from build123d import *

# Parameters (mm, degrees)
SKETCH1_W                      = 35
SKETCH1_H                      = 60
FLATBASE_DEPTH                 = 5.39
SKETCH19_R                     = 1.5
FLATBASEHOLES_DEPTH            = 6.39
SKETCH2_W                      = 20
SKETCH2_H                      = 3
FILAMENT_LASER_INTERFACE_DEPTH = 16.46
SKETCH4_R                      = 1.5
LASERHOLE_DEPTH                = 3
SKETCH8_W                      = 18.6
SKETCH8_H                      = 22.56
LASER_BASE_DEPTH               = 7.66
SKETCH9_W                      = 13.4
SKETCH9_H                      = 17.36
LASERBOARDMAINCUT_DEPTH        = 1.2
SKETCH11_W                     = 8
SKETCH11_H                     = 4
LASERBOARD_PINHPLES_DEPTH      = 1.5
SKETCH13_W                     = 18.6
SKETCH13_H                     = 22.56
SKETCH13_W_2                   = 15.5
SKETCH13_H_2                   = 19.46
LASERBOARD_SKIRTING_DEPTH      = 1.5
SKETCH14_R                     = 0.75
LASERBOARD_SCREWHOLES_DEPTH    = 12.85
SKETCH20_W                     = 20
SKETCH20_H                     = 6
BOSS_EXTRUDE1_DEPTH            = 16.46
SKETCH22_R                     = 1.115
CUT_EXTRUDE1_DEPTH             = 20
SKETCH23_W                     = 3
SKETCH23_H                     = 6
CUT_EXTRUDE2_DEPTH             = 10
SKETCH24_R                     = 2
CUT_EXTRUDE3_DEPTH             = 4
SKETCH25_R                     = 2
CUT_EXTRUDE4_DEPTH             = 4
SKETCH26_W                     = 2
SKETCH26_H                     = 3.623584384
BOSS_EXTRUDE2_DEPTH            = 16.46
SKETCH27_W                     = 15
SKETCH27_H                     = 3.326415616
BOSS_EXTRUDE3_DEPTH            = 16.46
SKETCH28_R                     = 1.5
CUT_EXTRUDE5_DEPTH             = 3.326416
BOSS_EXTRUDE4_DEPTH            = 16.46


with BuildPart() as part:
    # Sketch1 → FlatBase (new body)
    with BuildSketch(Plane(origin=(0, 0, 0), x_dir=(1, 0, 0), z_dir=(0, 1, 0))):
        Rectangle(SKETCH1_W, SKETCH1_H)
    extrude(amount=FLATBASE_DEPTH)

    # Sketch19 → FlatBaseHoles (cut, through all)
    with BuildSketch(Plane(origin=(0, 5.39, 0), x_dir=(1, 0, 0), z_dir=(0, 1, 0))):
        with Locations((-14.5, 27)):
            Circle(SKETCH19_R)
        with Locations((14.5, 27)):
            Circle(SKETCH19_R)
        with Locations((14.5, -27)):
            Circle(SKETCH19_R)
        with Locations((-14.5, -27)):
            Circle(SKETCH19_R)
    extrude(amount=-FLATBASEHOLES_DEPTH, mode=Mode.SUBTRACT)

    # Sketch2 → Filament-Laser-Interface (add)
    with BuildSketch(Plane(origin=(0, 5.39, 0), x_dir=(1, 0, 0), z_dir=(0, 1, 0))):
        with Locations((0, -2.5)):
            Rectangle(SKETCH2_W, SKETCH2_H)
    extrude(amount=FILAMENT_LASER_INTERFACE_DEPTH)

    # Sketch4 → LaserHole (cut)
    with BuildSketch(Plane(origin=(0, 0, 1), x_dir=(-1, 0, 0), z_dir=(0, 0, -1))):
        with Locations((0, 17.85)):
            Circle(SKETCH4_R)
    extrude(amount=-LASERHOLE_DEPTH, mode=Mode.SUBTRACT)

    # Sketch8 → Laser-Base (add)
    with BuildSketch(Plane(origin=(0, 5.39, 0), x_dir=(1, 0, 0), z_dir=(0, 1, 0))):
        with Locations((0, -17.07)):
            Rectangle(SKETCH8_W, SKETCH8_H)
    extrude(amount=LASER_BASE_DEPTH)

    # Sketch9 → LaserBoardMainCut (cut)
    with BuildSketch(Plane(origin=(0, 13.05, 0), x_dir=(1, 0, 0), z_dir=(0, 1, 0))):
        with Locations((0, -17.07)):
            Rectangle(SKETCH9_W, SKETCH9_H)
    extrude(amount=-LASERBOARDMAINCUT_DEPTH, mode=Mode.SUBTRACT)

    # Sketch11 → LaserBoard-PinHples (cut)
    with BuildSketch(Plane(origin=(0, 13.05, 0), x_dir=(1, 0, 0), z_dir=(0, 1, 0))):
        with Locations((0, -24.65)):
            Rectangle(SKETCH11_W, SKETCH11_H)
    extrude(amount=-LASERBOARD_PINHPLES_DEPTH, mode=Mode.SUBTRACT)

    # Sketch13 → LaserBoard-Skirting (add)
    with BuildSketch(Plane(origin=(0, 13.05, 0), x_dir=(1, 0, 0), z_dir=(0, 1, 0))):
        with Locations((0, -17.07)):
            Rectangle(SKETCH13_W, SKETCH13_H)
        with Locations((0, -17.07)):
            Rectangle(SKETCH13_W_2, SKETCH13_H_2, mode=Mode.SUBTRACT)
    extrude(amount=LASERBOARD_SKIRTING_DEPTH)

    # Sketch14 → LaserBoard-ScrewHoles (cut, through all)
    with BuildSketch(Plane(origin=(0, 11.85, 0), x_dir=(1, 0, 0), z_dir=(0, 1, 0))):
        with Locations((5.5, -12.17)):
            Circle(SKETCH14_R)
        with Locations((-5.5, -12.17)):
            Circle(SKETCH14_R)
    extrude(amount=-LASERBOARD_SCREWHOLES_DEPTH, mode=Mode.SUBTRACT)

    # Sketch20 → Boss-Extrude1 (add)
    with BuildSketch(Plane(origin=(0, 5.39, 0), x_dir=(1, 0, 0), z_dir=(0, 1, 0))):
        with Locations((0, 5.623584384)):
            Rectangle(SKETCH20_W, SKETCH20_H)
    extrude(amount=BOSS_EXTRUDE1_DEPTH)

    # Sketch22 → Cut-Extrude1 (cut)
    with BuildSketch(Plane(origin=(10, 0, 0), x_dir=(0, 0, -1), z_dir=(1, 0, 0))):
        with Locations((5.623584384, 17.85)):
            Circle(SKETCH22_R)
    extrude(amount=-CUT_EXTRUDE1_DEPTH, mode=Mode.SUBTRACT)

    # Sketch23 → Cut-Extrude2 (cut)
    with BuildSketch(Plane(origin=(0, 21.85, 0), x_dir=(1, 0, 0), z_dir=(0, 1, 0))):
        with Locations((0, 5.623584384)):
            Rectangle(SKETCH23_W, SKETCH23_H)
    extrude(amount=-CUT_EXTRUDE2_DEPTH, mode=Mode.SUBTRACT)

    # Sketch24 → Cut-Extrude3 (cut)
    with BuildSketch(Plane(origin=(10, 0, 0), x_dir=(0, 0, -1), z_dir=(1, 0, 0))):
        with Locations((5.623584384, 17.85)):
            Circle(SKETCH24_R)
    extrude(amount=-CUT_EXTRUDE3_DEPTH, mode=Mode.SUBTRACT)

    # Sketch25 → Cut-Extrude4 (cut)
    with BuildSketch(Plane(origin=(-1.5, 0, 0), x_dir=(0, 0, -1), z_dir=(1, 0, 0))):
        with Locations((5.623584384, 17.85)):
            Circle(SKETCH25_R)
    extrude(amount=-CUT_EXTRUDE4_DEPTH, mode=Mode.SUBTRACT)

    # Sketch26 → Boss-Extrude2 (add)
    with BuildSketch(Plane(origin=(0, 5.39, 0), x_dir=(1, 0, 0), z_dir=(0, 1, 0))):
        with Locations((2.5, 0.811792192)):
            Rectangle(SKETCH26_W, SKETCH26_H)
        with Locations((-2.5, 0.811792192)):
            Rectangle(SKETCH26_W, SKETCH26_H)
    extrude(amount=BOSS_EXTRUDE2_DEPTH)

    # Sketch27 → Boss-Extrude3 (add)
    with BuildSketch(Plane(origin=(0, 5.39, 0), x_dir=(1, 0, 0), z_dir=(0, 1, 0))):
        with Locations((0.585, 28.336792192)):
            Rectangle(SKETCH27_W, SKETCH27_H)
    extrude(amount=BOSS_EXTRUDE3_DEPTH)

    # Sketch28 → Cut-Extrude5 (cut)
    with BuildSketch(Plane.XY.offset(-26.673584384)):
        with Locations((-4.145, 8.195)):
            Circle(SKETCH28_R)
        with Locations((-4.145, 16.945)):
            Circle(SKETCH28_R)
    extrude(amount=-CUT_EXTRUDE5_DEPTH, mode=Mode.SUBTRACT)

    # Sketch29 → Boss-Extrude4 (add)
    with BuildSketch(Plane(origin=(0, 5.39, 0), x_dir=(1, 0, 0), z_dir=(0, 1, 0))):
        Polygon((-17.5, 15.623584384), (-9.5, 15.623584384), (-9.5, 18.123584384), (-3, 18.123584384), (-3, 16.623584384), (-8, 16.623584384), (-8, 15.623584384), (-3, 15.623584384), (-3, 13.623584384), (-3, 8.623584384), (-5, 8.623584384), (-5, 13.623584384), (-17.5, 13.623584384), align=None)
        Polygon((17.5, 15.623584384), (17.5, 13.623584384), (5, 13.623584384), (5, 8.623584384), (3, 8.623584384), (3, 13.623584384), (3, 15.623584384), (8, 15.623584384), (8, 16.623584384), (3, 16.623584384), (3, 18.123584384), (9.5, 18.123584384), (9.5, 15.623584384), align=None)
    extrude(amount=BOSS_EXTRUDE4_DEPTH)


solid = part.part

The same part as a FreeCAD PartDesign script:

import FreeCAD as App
import Part
import Sketcher

V = App.Vector


def add_polygon(sketch, points):
    """Adds a closed chain of lines whose ends are joined by coincident constraints."""
    first, n = sketch.GeometryCount, len(points)
    for a, b in zip(points, points[1:] + points[:1]):
        sketch.addGeometry(Part.LineSegment(App.Vector(*a, 0), App.Vector(*b, 0)), False)
    for i in range(n):
        sketch.addConstraint(Sketcher.Constraint("Coincident", first + i, 2, first + (i + 1) % n, 1))

doc = App.newDocument("Part")
body = doc.addObject("PartDesign::Body", "Body")

sketch1 = doc.addObject("Sketcher::SketchObject", "Sketch")
body.addObject(sketch1)
sketch1.AttachmentSupport = (doc.XZ_Plane, [""])
sketch1.MapMode = "FlatFace"
add_polygon(sketch1, [(-17.5, -30), (-17.5, 30), (17.5, 30), (17.5, -30)])
sketch1.addConstraint([
    Sketcher.Constraint("Vertical", 0),
    Sketcher.Constraint("Horizontal", 1),
    Sketcher.Constraint("Vertical", 2),
    Sketcher.Constraint("Horizontal", 3),
    Sketcher.Constraint("Symmetric", 0, 2, 2, 2, -1, 1),
    Sketcher.Constraint("DistanceX", 1, 1, 1, 2, 35.0),
    Sketcher.Constraint("DistanceY", 0, 1, 0, 2, 60.0),
])
pad1 = doc.addObject("PartDesign::Pad", "Pad")
body.addObject(pad1)
pad1.Profile = sketch1
pad1.Length = 5.39
pad1.Reversed = True

sketch2 = doc.addObject("Sketcher::SketchObject", "Sketch001")
body.addObject(sketch2)
sketch2.AttachmentSupport = (doc.XZ_Plane, [""])
sketch2.MapMode = "FlatFace"
sketch2.AttachmentOffset = App.Placement(V(0, 0, -5.39), App.Rotation())
sketch2.addGeometry([
    Part.Circle(V(-14.5, -27, 0), V(0, 0, 1), 1.5),
    Part.Circle(V(14.5, -27, 0), V(0, 0, 1), 1.5),
    Part.Circle(V(14.5, 27, 0), V(0, 0, 1), 1.5),
    Part.Circle(V(-14.5, 27, 0), V(0, 0, 1), 1.5),
], False)
sketch2.addConstraint([
    Sketcher.Constraint("Equal", 0, 1),
    Sketcher.Constraint("Equal", 1, 2),
    Sketcher.Constraint("Equal", 2, 3),
    Sketcher.Constraint("Symmetric", 0, 3, 2, 3, -1, 1),
    Sketcher.Constraint("Symmetric", 1, 3, 3, 3, -1, 1),
    Sketcher.Constraint("Symmetric", 0, 3, 1, 3, -2),
    Sketcher.Constraint("Diameter", 0, 3.0),
    Sketcher.Constraint("DistanceY", 0, 3, -1, 1, 27.0),
    Sketcher.Constraint("DistanceX", 0, 3, 1, 3, 29.0),
])
pocket1 = doc.addObject("PartDesign::Pocket", "Pocket")
body.addObject(pocket1)
pocket1.Profile = sketch2
pocket1.Type = "ThroughAll"
pocket1.Reversed = True

sketch3 = doc.addObject("Sketcher::SketchObject", "Sketch002")
body.addObject(sketch3)
sketch3.AttachmentSupport = (doc.XZ_Plane, [""])
sketch3.MapMode = "FlatFace"
sketch3.AttachmentOffset = App.Placement(V(0, 0, -5.39), App.Rotation())
add_polygon(sketch3, [(-10, 1), (-10, 4), (10, 4), (10, 1)])
sketch3.addConstraint([
    Sketcher.Constraint("Vertical", 0),
    Sketcher.Constraint("Horizontal", 1),
    Sketcher.Constraint("Vertical", 2),
    Sketcher.Constraint("Horizontal", 3),
    Sketcher.Constraint("DistanceX", 1, 1, 1, 2, 20.0),
    Sketcher.Constraint("DistanceY", 0, 1, 0, 2, 3.0),
    Sketcher.Constraint("DistanceX", 0, 2, -1, 1, 10.0),
    Sketcher.Constraint("DistanceY", -1, 1, 0, 2, 4.0),
])
pad2 = doc.addObject("PartDesign::Pad", "Pad001")
body.addObject(pad2)
pad2.Profile = sketch3
pad2.Length = 16.46
pad2.Reversed = True

sketch4 = doc.addObject("Sketcher::SketchObject", "Sketch003")
body.addObject(sketch4)
sketch4.AttachmentSupport = (doc.XY_Plane, [""])
sketch4.MapMode = "FlatFace"
sketch4.AttachmentOffset = App.Placement(V(0, 0, 1), App.Rotation())
sketch4.addGeometry(Part.Circle(V(0, 17.85, 0), V(0, 0, 1), 1.5), False)
sketch4.addConstraint([
    Sketcher.Constraint("PointOnObject", 0, 3, -2),
    Sketcher.Constraint("Diameter", 0, 3.0),
    Sketcher.Constraint("DistanceY", -1, 1, 0, 3, 17.85),
])
pocket2 = doc.addObject("PartDesign::Pocket", "Pocket001")
body.addObject(pocket2)
pocket2.Profile = sketch4
pocket2.Length = 3
pocket2.Reversed = True

sketch5 = doc.addObject("Sketcher::SketchObject", "Sketch004")
body.addObject(sketch5)
sketch5.AttachmentSupport = (doc.XZ_Plane, [""])
sketch5.MapMode = "FlatFace"
sketch5.AttachmentOffset = App.Placement(V(0, 0, -5.39), App.Rotation())
add_polygon(sketch5, [(-9.3, 5.79), (-9.3, 28.35), (9.3, 28.35), (9.3, 5.79)])
sketch5.addConstraint([
    Sketcher.Constraint("Vertical", 0),
    Sketcher.Constraint("Horizontal", 1),
    Sketcher.Constraint("Vertical", 2),
    Sketcher.Constraint("Horizontal", 3),
    Sketcher.Constraint("DistanceX", 1, 1, 1, 2, 18.6),
    Sketcher.Constraint("DistanceY", 0, 1, 0, 2, 22.56),
    Sketcher.Constraint("DistanceX", 0, 2, -1, 1, 9.3),
    Sketcher.Constraint("DistanceY", -1, 1, 0, 2, 28.35),
])
pad3 = doc.addObject("PartDesign::Pad", "Pad002")
body.addObject(pad3)
pad3.Profile = sketch5
pad3.Length = 7.66
pad3.Reversed = True

sketch6 = doc.addObject("Sketcher::SketchObject", "Sketch005")
body.addObject(sketch6)
sketch6.AttachmentSupport = (doc.XZ_Plane, [""])
sketch6.MapMode = "FlatFace"
sketch6.AttachmentOffset = App.Placement(V(0, 0, -13.05), App.Rotation())
add_polygon(sketch6, [(-6.7, 8.39), (-6.7, 25.75), (6.7, 25.75), (6.7, 8.39)])
sketch6.addConstraint([
    Sketcher.Constraint("Vertical", 0),
    Sketcher.Constraint("Horizontal", 1),
    Sketcher.Constraint("Vertical", 2),
    Sketcher.Constraint("Horizontal", 3),
    Sketcher.Constraint("DistanceX", 1, 1, 1, 2, 13.4),
    Sketcher.Constraint("DistanceY", 0, 1, 0, 2, 17.36),
    Sketcher.Constraint("DistanceX", 0, 2, -1, 1, 6.7),
    Sketcher.Constraint("DistanceY", -1, 1, 0, 2, 25.75),
])
pocket3 = doc.addObject("PartDesign::Pocket", "Pocket002")
body.addObject(pocket3)
pocket3.Profile = sketch6
pocket3.Length = 1.2
pocket3.Reversed = True

sketch7 = doc.addObject("Sketcher::SketchObject", "Sketch006")
body.addObject(sketch7)
sketch7.AttachmentSupport = (doc.XZ_Plane, [""])
sketch7.MapMode = "FlatFace"
sketch7.AttachmentOffset = App.Placement(V(0, 0, -13.05), App.Rotation())
add_polygon(sketch7, [(-4, 22.65), (-4, 26.65), (4, 26.65), (4, 22.65)])
sketch7.addConstraint([
    Sketcher.Constraint("Vertical", 0),
    Sketcher.Constraint("Horizontal", 1),
    Sketcher.Constraint("Vertical", 2),
    Sketcher.Constraint("Horizontal", 3),
    Sketcher.Constraint("DistanceX", 1, 1, 1, 2, 8.0),
    Sketcher.Constraint("DistanceY", 0, 1, 0, 2, 4.0),
    Sketcher.Constraint("DistanceX", 0, 2, -1, 1, 4.0),
    Sketcher.Constraint("DistanceY", -1, 1, 0, 2, 26.65),
])
pocket4 = doc.addObject("PartDesign::Pocket", "Pocket003")
body.addObject(pocket4)
pocket4.Profile = sketch7
pocket4.Length = 1.5
pocket4.Reversed = True

sketch8 = doc.addObject("Sketcher::SketchObject", "Sketch007")
body.addObject(sketch8)
sketch8.AttachmentSupport = (doc.XZ_Plane, [""])
sketch8.MapMode = "FlatFace"
sketch8.AttachmentOffset = App.Placement(V(0, 0, -13.05), App.Rotation())
add_polygon(sketch8, [(-9.3, 5.79), (-9.3, 28.35), (9.3, 28.35), (9.3, 5.79)])
add_polygon(sketch8, [(7.75, 26.8), (-7.75, 26.8), (-7.75, 7.34), (7.75, 7.34)])
sketch8.addConstraint([
    Sketcher.Constraint("Vertical", 0),
    Sketcher.Constraint("Horizontal", 1),
    Sketcher.Constraint("Vertical", 2),
    Sketcher.Constraint("Horizontal", 3),
    Sketcher.Constraint("Horizontal", 4),
    Sketcher.Constraint("Vertical", 5),
    Sketcher.Constraint("Horizontal", 6),
    Sketcher.Constraint("Vertical", 7),
    Sketcher.Constraint("DistanceX", 1, 1, 1, 2, 18.6),
    Sketcher.Constraint("DistanceX", 4, 2, 4, 1, 15.5),
    Sketcher.Constraint("DistanceY", 0, 1, 0, 2, 22.56),
    Sketcher.Constraint("DistanceY", 5, 2, 5, 1, 19.46),
    Sketcher.Constraint("DistanceX", 0, 2, -1, 1, 9.3),
    Sketcher.Constraint("DistanceY", -1, 1, 4, 2, 26.8),
    Sketcher.Constraint("DistanceY", -1, 1, 0, 2, 28.35),
    Sketcher.Constraint("DistanceX", 4, 2, -1, 1, 7.75),
])
pad4 = doc.addObject("PartDesign::Pad", "Pad003")
body.addObject(pad4)
pad4.Profile = sketch8
pad4.Length = 1.5
pad4.Reversed = True

sketch9 = doc.addObject("Sketcher::SketchObject", "Sketch008")
body.addObject(sketch9)
sketch9.AttachmentSupport = (doc.XZ_Plane, [""])
sketch9.MapMode = "FlatFace"
sketch9.AttachmentOffset = App.Placement(V(0, 0, -11.85), App.Rotation())
sketch9.addGeometry([
    Part.Circle(V(5.5, 12.17, 0), V(0, 0, 1), 0.75),
    Part.Circle(V(-5.5, 12.17, 0), V(0, 0, 1), 0.75),
], False)
sketch9.addConstraint([
    Sketcher.Constraint("Equal", 0, 1),
    Sketcher.Constraint("Symmetric", 0, 3, 1, 3, -2),
    Sketcher.Constraint("Diameter", 0, 1.5),
    Sketcher.Constraint("DistanceX", 1, 3, 0, 3, 11.0),
    Sketcher.Constraint("DistanceY", -1, 1, 0, 3, 12.17),
])
pocket5 = doc.addObject("PartDesign::Pocket", "Pocket004")
body.addObject(pocket5)
pocket5.Profile = sketch9
pocket5.Type = "ThroughAll"
pocket5.Reversed = True

sketch10 = doc.addObject("Sketcher::SketchObject", "Sketch009")
body.addObject(sketch10)
sketch10.AttachmentSupport = (doc.XZ_Plane, [""])
sketch10.MapMode = "FlatFace"
sketch10.AttachmentOffset = App.Placement(V(0, 0, -5.39), App.Rotation())
add_polygon(sketch10, [(-10, -8.623584), (-10, -2.623584), (10, -2.623584), (10, -8.623584)])
sketch10.addConstraint([
    Sketcher.Constraint("Vertical", 0),
    Sketcher.Constraint("Horizontal", 1),
    Sketcher.Constraint("Vertical", 2),
    Sketcher.Constraint("Horizontal", 3),
    Sketcher.Constraint("DistanceX", 1, 1, 1, 2, 20.0),
    Sketcher.Constraint("DistanceY", 0, 1, 0, 2, 6.0),
    Sketcher.Constraint("DistanceX", 0, 2, -1, 1, 10.0),
    Sketcher.Constraint("DistanceY", 0, 2, -1, 1, 2.623584),
])
pad5 = doc.addObject("PartDesign::Pad", "Pad004")
body.addObject(pad5)
pad5.Profile = sketch10
pad5.Length = 16.46
pad5.Reversed = True

sketch11 = doc.addObject("Sketcher::SketchObject", "Sketch010")
body.addObject(sketch11)
sketch11.AttachmentSupport = (doc.YZ_Plane, [""])
sketch11.MapMode = "FlatFace"
sketch11.AttachmentOffset = App.Placement(V(0, 0, 10), App.Rotation())
sketch11.addGeometry(Part.Circle(V(17.85, -5.623584, 0), V(0, 0, 1), 1.115), False)
sketch11.addConstraint([
    Sketcher.Constraint("Diameter", 0, 2.23),
    Sketcher.Constraint("DistanceX", -1, 1, 0, 3, 17.85),
    Sketcher.Constraint("DistanceY", 0, 3, -1, 1, 5.623584),
])
pocket6 = doc.addObject("PartDesign::Pocket", "Pocket005")
body.addObject(pocket6)
pocket6.Profile = sketch11
pocket6.Length = 20

sketch12 = doc.addObject("Sketcher::SketchObject", "Sketch011")
body.addObject(sketch12)
sketch12.AttachmentSupport = (doc.XZ_Plane, [""])
sketch12.MapMode = "FlatFace"
sketch12.AttachmentOffset = App.Placement(V(0, 0, -21.85), App.Rotation())
add_polygon(sketch12, [(-1.5, -8.623584), (-1.5, -2.623584), (1.5, -2.623584), (1.5, -8.623584)])
sketch12.addConstraint([
    Sketcher.Constraint("Vertical", 0),
    Sketcher.Constraint("Horizontal", 1),
    Sketcher.Constraint("Vertical", 2),
    Sketcher.Constraint("Horizontal", 3),
    Sketcher.Constraint("DistanceX", 1, 1, 1, 2, 3.0),
    Sketcher.Constraint("DistanceY", 0, 1, 0, 2, 6.0),
    Sketcher.Constraint("DistanceX", 0, 2, -1, 1, 1.5),
    Sketcher.Constraint("DistanceY", 0, 2, -1, 1, 2.623584),
])
pocket7 = doc.addObject("PartDesign::Pocket", "Pocket006")
body.addObject(pocket7)
pocket7.Profile = sketch12
pocket7.Length = 10
pocket7.Reversed = True

sketch13 = doc.addObject("Sketcher::SketchObject", "Sketch012")
body.addObject(sketch13)
sketch13.AttachmentSupport = (doc.YZ_Plane, [""])
sketch13.MapMode = "FlatFace"
sketch13.AttachmentOffset = App.Placement(V(0, 0, 10), App.Rotation())
sketch13.addGeometry(Part.Circle(V(17.85, -5.623584, 0), V(0, 0, 1), 2), False)
sketch13.addConstraint([
    Sketcher.Constraint("Diameter", 0, 4.0),
    Sketcher.Constraint("DistanceX", -1, 1, 0, 3, 17.85),
    Sketcher.Constraint("DistanceY", 0, 3, -1, 1, 5.623584),
])
pocket8 = doc.addObject("PartDesign::Pocket", "Pocket007")
body.addObject(pocket8)
pocket8.Profile = sketch13
pocket8.Length = 4

sketch14 = doc.addObject("Sketcher::SketchObject", "Sketch013")
body.addObject(sketch14)
sketch14.AttachmentSupport = (doc.YZ_Plane, [""])
sketch14.MapMode = "FlatFace"
sketch14.AttachmentOffset = App.Placement(V(0, 0, -1.5), App.Rotation())
sketch14.addGeometry(Part.Circle(V(17.85, -5.623584, 0), V(0, 0, 1), 2), False)
sketch14.addConstraint([
    Sketcher.Constraint("Diameter", 0, 4.0),
    Sketcher.Constraint("DistanceX", -1, 1, 0, 3, 17.85),
    Sketcher.Constraint("DistanceY", 0, 3, -1, 1, 5.623584),
])
pocket9 = doc.addObject("PartDesign::Pocket", "Pocket008")
body.addObject(pocket9)
pocket9.Profile = sketch14
pocket9.Length = 4

sketch15 = doc.addObject("Sketcher::SketchObject", "Sketch014")
body.addObject(sketch15)
sketch15.AttachmentSupport = (doc.XZ_Plane, [""])
sketch15.MapMode = "FlatFace"
sketch15.AttachmentOffset = App.Placement(V(0, 0, -5.39), App.Rotation())
add_polygon(sketch15, [(1.5, -2.623584), (1.5, 1), (3.5, 1), (3.5, -2.623584)])
add_polygon(sketch15, [(-3.5, -2.623584), (-3.5, 1), (-1.5, 1), (-1.5, -2.623584)])
sketch15.addConstraint([
    Sketcher.Constraint("Vertical", 0),
    Sketcher.Constraint("Horizontal", 1),
    Sketcher.Constraint("Vertical", 2),
    Sketcher.Constraint("Horizontal", 3),
    Sketcher.Constraint("Vertical", 4),
    Sketcher.Constraint("Horizontal", 5),
    Sketcher.Constraint("Vertical", 6),
    Sketcher.Constraint("Horizontal", 7),
    Sketcher.Constraint("Symmetric", 1, 2, 4, 2, -2),
    Sketcher.Constraint("Symmetric", 3, 2, 6, 2, -2),
    Sketcher.Constraint("DistanceX", 1, 1, 1, 2, 2.0),
    Sketcher.Constraint("DistanceY", -1, 1, 0, 2, 1.0),
    Sketcher.Constraint("DistanceX", 4, 2, 0, 2, 5.0),
    Sketcher.Constraint("DistanceY", 0, 1, 0, 2, 3.623584),
])
pad6 = doc.addObject("PartDesign::Pad", "Pad005")
body.addObject(pad6)
pad6.Profile = sketch15
pad6.Length = 16.46
pad6.Reversed = True

sketch16 = doc.addObject("Sketcher::SketchObject", "Sketch015")
body.addObject(sketch16)
sketch16.AttachmentSupport = (doc.XZ_Plane, [""])
sketch16.MapMode = "FlatFace"
sketch16.AttachmentOffset = App.Placement(V(0, 0, -5.39), App.Rotation())
add_polygon(sketch16, [(-6.915, -30), (-6.915, -26.673584), (8.085, -26.673584), (8.085, -30)])
sketch16.addConstraint([
    Sketcher.Constraint("Vertical", 0),
    Sketcher.Constraint("Horizontal", 1),
    Sketcher.Constraint("Vertical", 2),
    Sketcher.Constraint("Horizontal", 3),
    Sketcher.Constraint("DistanceX", 1, 1, 1, 2, 15.0),
    Sketcher.Constraint("DistanceY", 2, 2, -1, 1, 30.0),
    Sketcher.Constraint("DistanceX", 0, 2, -1, 1, 6.915),
    Sketcher.Constraint("DistanceY", 0, 1, 0, 2, 3.326416),
])
pad7 = doc.addObject("PartDesign::Pad", "Pad006")
body.addObject(pad7)
pad7.Profile = sketch16
pad7.Length = 16.46
pad7.Reversed = True

sketch17 = doc.addObject("Sketcher::SketchObject", "Sketch016")
body.addObject(sketch17)
sketch17.AttachmentSupport = (doc.XY_Plane, [""])
sketch17.MapMode = "FlatFace"
sketch17.AttachmentOffset = App.Placement(V(0, 0, -26.673584), App.Rotation())
sketch17.addGeometry([
    Part.Circle(V(-4.145, 8.195, 0), V(0, 0, 1), 1.5),
    Part.Circle(V(-4.145, 16.945, 0), V(0, 0, 1), 1.5),
], False)
sketch17.addConstraint([
    Sketcher.Constraint("Equal", 0, 1),
    Sketcher.Constraint("Vertical", 0, 3, 1, 3),
    Sketcher.Constraint("Diameter", 0, 3.0),
    Sketcher.Constraint("DistanceY", 0, 3, 1, 3, 8.75),
    Sketcher.Constraint("DistanceX", 0, 3, -1, 1, 4.145),
    Sketcher.Constraint("DistanceY", -1, 1, 0, 3, 8.195),
])
pocket10 = doc.addObject("PartDesign::Pocket", "Pocket009")
body.addObject(pocket10)
pocket10.Profile = sketch17
pocket10.Length = 3.326416

sketch18 = doc.addObject("Sketcher::SketchObject", "Sketch017")
body.addObject(sketch18)
sketch18.AttachmentSupport = (doc.XZ_Plane, [""])
sketch18.MapMode = "FlatFace"
sketch18.AttachmentOffset = App.Placement(V(0, 0, -5.39), App.Rotation())
add_polygon(sketch18, [(-9.5, -15.623584), (-17.5, -15.623584), (-17.5, -13.623584), (-5, -13.623584), (-5, -8.623584), (-3, -8.623584), (-3, -15.623584), (-8, -15.623584), (-8, -16.623584), (-3, -16.623584), (-3, -18.123584), (-9.5, -18.123584)])
add_polygon(sketch18, [(17.5, -13.623584), (17.5, -15.623584), (9.5, -15.623584), (9.5, -18.123584), (3, -18.123584), (3, -16.623584), (8, -16.623584), (8, -15.623584), (3, -15.623584), (3, -8.623584), (5, -8.623584), (5, -13.623584)])
sketch18.addConstraint([
    Sketcher.Constraint("Horizontal", 0),
    Sketcher.Constraint("Vertical", 1),
    Sketcher.Constraint("Horizontal", 2),
    Sketcher.Constraint("Vertical", 3),
    Sketcher.Constraint("Horizontal", 4),
    Sketcher.Constraint("Vertical", 5),
    Sketcher.Constraint("Horizontal", 6),
    Sketcher.Constraint("Vertical", 7),
    Sketcher.Constraint("Horizontal", 8),
    Sketcher.Constraint("Vertical", 9),
    Sketcher.Constraint("Horizontal", 10),
    Sketcher.Constraint("Vertical", 11),
    Sketcher.Constraint("Vertical", 12),
    Sketcher.Constraint("Horizontal", 13),
    Sketcher.Constraint("Vertical", 14),
    Sketcher.Constraint("Horizontal", 15),
    Sketcher.Constraint("Vertical", 16),
    Sketcher.Constraint("Horizontal", 17),
    Sketcher.Constraint("Vertical", 18),
    Sketcher.Constraint("Horizontal", 19),
    Sketcher.Constraint("Vertical", 20),
    Sketcher.Constraint("Horizontal", 21),
    Sketcher.Constraint("Vertical", 22),
    Sketcher.Constraint("Horizontal", 23),
    Sketcher.Constraint("Symmetric", 0, 2, 12, 2, -2),
    Sketcher.Constraint("Symmetric", 10, 2, 14, 2, -2),
    Sketcher.Constraint("Symmetric", 8, 2, 16, 2, -2),
    Sketcher.Constraint("Symmetric", 6, 2, 18, 2, -2),
    Sketcher.Constraint("Symmetric", 4, 2, 20, 2, -2),
    Sketcher.Constraint("Symmetric", 2, 2, 22, 2, -2),
    Sketcher.Constraint("Horizontal", 0, 2, 5, 2),
    Sketcher.Constraint("Vertical", 5, 2, 8, 2),
    Sketcher.Constraint("Equal", 21, 1),
    Sketcher.Constraint("Equal", 19, 3),
    Sketcher.Constraint("DistanceX", 0, 2, 0, 1, 8.0),
    Sketcher.Constraint("DistanceX", 4, 1, 4, 2, 2.0),
    Sketcher.Constraint("DistanceX", 6, 2, 6, 1, 5.0),
    Sketcher.Constraint("DistanceY", 7, 2, 7, 1, 1.0),
    Sketcher.Constraint("DistanceX", 2, 1, 2, 2, 12.5),
    Sketcher.Constraint("DistanceY", 9, 2, 9, 1, 1.5),
    Sketcher.Constraint("DistanceX", 2, 2, -1, 1, 5.0),
    Sketcher.Constraint("DistanceY", 0, 2, -1, 1, 15.623584),
])
pad8 = doc.addObject("PartDesign::Pad", "Pad007")
body.addObject(pad8)
pad8.Profile = sketch18
pad8.Length = 16.46
pad8.Reversed = True

doc.recompute()
